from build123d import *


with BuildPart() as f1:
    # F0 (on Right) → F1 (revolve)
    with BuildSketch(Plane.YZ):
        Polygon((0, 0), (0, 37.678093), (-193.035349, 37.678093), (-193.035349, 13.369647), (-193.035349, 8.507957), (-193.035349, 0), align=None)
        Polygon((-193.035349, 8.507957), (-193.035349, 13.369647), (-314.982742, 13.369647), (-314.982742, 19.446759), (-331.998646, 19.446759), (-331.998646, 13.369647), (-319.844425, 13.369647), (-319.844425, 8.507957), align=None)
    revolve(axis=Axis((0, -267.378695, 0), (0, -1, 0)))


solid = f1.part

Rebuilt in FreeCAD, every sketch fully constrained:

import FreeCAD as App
import Part
import Sketcher

V = App.Vector

doc = App.newDocument("Part")
params = doc.addObject("Spreadsheet::Sheet", "Params")
for row, (alias, value) in enumerate([
    ("revolution_angle", "360 deg"),
], start=1):
    params.set(f"A{row}", alias)
    params.set(f"B{row}", "=" + value)
    params.setAlias(f"B{row}", alias)

body = doc.addObject("PartDesign::Body", "Body")

# Sketch on YZ plane
sketch1 = doc.addObject("Sketcher::SketchObject", "Sketch")
body.addObject(sketch1)
sketch1.AttachmentSupport = (doc.YZ_Plane, [""])
sketch1.MapMode = "FlatFace"
sketch1.addGeometry(Part.LineSegment(V(0, 0, 0), V(0, 37.7, 0)), False)
sketch1.addGeometry(Part.LineSegment(V(0, 37.7, 0), V(-193, 37.7, 0)), False)
sketch1.addGeometry(Part.LineSegment(V(-193, 37.7, 0), V(-193, 13.4, 0)), False)
sketch1.addGeometry(Part.LineSegment(V(-193, 13.4, 0), V(-315, 13.4, 0)), False)
sketch1.addGeometry(Part.LineSegment(V(-315, 13.4, 0), V(-315, 19.4, 0)), False)
sketch1.addGeometry(Part.LineSegment(V(-315, 19.4, 0), V(-332, 19.4, 0)), False)
sketch1.addGeometry(Part.LineSegment(V(-332, 19.4, 0), V(-332, 13.4, 0)), False)
sketch1.addGeometry(Part.LineSegment(V(-332, 13.4, 0), V(-319.8, 13.4, 0)), False)
sketch1.addGeometry(Part.LineSegment(V(-319.8, 13.4, 0), V(-319.8, 8.5, 0)), False)
sketch1.addGeometry(Part.LineSegment(V(-319.8, 8.5, 0), V(-193, 8.5, 0)), False)
sketch1.addGeometry(Part.LineSegment(V(-193, 8.5, 0), V(-193, 0, 0)), False)
sketch1.addGeometry(Part.LineSegment(V(-193, 0, 0), V(0, 0, 0)), False)
sketch1.addConstraint(Sketcher.Constraint("Coincident", 0, 2, 1, 1))
sketch1.addConstraint(Sketcher.Constraint("Coincident", 1, 2, 2, 1))
sketch1.addConstraint(Sketcher.Constraint("Coincident", 2, 2, 3, 1))
sketch1.addConstraint(Sketcher.Constraint("Coincident", 3, 2, 4, 1))
sketch1.addConstraint(Sketcher.Constraint("Coincident", 4, 2, 5, 1))
sketch1.addConstraint(Sketcher.Constraint("Coincident", 5, 2, 6, 1))
sketch1.addConstraint(Sketcher.Constraint("Coincident", 6, 2, 7, 1))
sketch1.addConstraint(Sketcher.Constraint("Coincident", 7, 2, 8, 1))
sketch1.addConstraint(Sketcher.Constraint("Coincident", 8, 2, 9, 1))
sketch1.addConstraint(Sketcher.Constraint("Coincident", 9, 2, 10, 1))
sketch1.addConstraint(Sketcher.Constraint("Coincident", 10, 2, 11, 1))
sketch1.addConstraint(Sketcher.Constraint("Coincident", 11, 2, 0, 1))
sketch1.addConstraint(Sketcher.Constraint("Vertical", 0))
sketch1.addConstraint(Sketcher.Constraint("Horizontal", 1))
sketch1.addConstraint(Sketcher.Constraint("Vertical", 2))
sketch1.addConstraint(Sketcher.Constraint("Horizontal", 3))
sketch1.addConstraint(Sketcher.Constraint("Vertical", 4))
sketch1.addConstraint(Sketcher.Constraint("Horizontal", 5))
sketch1.addConstraint(Sketcher.Constraint("Vertical", 6))
sketch1.addConstraint(Sketcher.Constraint("Horizontal", 7))
sketch1.addConstraint(Sketcher.Constraint("Vertical", 8))
sketch1.addConstraint(Sketcher.Constraint("Horizontal", 9))
sketch1.addConstraint(Sketcher.Constraint("Vertical", 10))
sketch1.addConstraint(Sketcher.Constraint("Horizontal", 11))
sketch1.addConstraint(Sketcher.Constraint("Coincident", 11, 2, -1, 1))
sketch1.addConstraint(Sketcher.Constraint("Horizontal", 3, 2, 6, 2))
sketch1.addConstraint(Sketcher.Constraint("Vertical", 2, 2, 9, 2))
sketch1.addConstraint(Sketcher.Constraint("DistanceX", 1, 2, 1, 1, 193.035349))
sketch1.addConstraint(Sketcher.Constraint("DistanceX", 7, 1, 7, 2, 12.154221))
sketch1.addConstraint(Sketcher.Constraint("DistanceY", 4, 1, 4, 2, 6.077112))
sketch1.addConstraint(Sketcher.Constraint("DistanceY", 8, 2, 8, 1, 4.86169))
sketch1.addConstraint(Sketcher.Constraint("DistanceX", 3, 2, 3, 1, 121.947393))
sketch1.addConstraint(Sketcher.Constraint("DistanceX", 5, 2, 5, 1, 17.015904))
sketch1.addConstraint(Sketcher.Constraint("DistanceY", 0, 1, 0, 2, 37.678093))
sketch1.addConstraint(Sketcher.Constraint("DistanceY", 2, 2, 2, 1, 24.308446))
revolution = doc.addObject("PartDesign::Revolution", "Revolution")
body.addObject(revolution)
revolution.Profile = sketch1
revolution.ReferenceAxis = (sketch1, ["H_Axis"])
revolution.setExpression("Angle", "Params.revolution_angle")

doc.recompute()
